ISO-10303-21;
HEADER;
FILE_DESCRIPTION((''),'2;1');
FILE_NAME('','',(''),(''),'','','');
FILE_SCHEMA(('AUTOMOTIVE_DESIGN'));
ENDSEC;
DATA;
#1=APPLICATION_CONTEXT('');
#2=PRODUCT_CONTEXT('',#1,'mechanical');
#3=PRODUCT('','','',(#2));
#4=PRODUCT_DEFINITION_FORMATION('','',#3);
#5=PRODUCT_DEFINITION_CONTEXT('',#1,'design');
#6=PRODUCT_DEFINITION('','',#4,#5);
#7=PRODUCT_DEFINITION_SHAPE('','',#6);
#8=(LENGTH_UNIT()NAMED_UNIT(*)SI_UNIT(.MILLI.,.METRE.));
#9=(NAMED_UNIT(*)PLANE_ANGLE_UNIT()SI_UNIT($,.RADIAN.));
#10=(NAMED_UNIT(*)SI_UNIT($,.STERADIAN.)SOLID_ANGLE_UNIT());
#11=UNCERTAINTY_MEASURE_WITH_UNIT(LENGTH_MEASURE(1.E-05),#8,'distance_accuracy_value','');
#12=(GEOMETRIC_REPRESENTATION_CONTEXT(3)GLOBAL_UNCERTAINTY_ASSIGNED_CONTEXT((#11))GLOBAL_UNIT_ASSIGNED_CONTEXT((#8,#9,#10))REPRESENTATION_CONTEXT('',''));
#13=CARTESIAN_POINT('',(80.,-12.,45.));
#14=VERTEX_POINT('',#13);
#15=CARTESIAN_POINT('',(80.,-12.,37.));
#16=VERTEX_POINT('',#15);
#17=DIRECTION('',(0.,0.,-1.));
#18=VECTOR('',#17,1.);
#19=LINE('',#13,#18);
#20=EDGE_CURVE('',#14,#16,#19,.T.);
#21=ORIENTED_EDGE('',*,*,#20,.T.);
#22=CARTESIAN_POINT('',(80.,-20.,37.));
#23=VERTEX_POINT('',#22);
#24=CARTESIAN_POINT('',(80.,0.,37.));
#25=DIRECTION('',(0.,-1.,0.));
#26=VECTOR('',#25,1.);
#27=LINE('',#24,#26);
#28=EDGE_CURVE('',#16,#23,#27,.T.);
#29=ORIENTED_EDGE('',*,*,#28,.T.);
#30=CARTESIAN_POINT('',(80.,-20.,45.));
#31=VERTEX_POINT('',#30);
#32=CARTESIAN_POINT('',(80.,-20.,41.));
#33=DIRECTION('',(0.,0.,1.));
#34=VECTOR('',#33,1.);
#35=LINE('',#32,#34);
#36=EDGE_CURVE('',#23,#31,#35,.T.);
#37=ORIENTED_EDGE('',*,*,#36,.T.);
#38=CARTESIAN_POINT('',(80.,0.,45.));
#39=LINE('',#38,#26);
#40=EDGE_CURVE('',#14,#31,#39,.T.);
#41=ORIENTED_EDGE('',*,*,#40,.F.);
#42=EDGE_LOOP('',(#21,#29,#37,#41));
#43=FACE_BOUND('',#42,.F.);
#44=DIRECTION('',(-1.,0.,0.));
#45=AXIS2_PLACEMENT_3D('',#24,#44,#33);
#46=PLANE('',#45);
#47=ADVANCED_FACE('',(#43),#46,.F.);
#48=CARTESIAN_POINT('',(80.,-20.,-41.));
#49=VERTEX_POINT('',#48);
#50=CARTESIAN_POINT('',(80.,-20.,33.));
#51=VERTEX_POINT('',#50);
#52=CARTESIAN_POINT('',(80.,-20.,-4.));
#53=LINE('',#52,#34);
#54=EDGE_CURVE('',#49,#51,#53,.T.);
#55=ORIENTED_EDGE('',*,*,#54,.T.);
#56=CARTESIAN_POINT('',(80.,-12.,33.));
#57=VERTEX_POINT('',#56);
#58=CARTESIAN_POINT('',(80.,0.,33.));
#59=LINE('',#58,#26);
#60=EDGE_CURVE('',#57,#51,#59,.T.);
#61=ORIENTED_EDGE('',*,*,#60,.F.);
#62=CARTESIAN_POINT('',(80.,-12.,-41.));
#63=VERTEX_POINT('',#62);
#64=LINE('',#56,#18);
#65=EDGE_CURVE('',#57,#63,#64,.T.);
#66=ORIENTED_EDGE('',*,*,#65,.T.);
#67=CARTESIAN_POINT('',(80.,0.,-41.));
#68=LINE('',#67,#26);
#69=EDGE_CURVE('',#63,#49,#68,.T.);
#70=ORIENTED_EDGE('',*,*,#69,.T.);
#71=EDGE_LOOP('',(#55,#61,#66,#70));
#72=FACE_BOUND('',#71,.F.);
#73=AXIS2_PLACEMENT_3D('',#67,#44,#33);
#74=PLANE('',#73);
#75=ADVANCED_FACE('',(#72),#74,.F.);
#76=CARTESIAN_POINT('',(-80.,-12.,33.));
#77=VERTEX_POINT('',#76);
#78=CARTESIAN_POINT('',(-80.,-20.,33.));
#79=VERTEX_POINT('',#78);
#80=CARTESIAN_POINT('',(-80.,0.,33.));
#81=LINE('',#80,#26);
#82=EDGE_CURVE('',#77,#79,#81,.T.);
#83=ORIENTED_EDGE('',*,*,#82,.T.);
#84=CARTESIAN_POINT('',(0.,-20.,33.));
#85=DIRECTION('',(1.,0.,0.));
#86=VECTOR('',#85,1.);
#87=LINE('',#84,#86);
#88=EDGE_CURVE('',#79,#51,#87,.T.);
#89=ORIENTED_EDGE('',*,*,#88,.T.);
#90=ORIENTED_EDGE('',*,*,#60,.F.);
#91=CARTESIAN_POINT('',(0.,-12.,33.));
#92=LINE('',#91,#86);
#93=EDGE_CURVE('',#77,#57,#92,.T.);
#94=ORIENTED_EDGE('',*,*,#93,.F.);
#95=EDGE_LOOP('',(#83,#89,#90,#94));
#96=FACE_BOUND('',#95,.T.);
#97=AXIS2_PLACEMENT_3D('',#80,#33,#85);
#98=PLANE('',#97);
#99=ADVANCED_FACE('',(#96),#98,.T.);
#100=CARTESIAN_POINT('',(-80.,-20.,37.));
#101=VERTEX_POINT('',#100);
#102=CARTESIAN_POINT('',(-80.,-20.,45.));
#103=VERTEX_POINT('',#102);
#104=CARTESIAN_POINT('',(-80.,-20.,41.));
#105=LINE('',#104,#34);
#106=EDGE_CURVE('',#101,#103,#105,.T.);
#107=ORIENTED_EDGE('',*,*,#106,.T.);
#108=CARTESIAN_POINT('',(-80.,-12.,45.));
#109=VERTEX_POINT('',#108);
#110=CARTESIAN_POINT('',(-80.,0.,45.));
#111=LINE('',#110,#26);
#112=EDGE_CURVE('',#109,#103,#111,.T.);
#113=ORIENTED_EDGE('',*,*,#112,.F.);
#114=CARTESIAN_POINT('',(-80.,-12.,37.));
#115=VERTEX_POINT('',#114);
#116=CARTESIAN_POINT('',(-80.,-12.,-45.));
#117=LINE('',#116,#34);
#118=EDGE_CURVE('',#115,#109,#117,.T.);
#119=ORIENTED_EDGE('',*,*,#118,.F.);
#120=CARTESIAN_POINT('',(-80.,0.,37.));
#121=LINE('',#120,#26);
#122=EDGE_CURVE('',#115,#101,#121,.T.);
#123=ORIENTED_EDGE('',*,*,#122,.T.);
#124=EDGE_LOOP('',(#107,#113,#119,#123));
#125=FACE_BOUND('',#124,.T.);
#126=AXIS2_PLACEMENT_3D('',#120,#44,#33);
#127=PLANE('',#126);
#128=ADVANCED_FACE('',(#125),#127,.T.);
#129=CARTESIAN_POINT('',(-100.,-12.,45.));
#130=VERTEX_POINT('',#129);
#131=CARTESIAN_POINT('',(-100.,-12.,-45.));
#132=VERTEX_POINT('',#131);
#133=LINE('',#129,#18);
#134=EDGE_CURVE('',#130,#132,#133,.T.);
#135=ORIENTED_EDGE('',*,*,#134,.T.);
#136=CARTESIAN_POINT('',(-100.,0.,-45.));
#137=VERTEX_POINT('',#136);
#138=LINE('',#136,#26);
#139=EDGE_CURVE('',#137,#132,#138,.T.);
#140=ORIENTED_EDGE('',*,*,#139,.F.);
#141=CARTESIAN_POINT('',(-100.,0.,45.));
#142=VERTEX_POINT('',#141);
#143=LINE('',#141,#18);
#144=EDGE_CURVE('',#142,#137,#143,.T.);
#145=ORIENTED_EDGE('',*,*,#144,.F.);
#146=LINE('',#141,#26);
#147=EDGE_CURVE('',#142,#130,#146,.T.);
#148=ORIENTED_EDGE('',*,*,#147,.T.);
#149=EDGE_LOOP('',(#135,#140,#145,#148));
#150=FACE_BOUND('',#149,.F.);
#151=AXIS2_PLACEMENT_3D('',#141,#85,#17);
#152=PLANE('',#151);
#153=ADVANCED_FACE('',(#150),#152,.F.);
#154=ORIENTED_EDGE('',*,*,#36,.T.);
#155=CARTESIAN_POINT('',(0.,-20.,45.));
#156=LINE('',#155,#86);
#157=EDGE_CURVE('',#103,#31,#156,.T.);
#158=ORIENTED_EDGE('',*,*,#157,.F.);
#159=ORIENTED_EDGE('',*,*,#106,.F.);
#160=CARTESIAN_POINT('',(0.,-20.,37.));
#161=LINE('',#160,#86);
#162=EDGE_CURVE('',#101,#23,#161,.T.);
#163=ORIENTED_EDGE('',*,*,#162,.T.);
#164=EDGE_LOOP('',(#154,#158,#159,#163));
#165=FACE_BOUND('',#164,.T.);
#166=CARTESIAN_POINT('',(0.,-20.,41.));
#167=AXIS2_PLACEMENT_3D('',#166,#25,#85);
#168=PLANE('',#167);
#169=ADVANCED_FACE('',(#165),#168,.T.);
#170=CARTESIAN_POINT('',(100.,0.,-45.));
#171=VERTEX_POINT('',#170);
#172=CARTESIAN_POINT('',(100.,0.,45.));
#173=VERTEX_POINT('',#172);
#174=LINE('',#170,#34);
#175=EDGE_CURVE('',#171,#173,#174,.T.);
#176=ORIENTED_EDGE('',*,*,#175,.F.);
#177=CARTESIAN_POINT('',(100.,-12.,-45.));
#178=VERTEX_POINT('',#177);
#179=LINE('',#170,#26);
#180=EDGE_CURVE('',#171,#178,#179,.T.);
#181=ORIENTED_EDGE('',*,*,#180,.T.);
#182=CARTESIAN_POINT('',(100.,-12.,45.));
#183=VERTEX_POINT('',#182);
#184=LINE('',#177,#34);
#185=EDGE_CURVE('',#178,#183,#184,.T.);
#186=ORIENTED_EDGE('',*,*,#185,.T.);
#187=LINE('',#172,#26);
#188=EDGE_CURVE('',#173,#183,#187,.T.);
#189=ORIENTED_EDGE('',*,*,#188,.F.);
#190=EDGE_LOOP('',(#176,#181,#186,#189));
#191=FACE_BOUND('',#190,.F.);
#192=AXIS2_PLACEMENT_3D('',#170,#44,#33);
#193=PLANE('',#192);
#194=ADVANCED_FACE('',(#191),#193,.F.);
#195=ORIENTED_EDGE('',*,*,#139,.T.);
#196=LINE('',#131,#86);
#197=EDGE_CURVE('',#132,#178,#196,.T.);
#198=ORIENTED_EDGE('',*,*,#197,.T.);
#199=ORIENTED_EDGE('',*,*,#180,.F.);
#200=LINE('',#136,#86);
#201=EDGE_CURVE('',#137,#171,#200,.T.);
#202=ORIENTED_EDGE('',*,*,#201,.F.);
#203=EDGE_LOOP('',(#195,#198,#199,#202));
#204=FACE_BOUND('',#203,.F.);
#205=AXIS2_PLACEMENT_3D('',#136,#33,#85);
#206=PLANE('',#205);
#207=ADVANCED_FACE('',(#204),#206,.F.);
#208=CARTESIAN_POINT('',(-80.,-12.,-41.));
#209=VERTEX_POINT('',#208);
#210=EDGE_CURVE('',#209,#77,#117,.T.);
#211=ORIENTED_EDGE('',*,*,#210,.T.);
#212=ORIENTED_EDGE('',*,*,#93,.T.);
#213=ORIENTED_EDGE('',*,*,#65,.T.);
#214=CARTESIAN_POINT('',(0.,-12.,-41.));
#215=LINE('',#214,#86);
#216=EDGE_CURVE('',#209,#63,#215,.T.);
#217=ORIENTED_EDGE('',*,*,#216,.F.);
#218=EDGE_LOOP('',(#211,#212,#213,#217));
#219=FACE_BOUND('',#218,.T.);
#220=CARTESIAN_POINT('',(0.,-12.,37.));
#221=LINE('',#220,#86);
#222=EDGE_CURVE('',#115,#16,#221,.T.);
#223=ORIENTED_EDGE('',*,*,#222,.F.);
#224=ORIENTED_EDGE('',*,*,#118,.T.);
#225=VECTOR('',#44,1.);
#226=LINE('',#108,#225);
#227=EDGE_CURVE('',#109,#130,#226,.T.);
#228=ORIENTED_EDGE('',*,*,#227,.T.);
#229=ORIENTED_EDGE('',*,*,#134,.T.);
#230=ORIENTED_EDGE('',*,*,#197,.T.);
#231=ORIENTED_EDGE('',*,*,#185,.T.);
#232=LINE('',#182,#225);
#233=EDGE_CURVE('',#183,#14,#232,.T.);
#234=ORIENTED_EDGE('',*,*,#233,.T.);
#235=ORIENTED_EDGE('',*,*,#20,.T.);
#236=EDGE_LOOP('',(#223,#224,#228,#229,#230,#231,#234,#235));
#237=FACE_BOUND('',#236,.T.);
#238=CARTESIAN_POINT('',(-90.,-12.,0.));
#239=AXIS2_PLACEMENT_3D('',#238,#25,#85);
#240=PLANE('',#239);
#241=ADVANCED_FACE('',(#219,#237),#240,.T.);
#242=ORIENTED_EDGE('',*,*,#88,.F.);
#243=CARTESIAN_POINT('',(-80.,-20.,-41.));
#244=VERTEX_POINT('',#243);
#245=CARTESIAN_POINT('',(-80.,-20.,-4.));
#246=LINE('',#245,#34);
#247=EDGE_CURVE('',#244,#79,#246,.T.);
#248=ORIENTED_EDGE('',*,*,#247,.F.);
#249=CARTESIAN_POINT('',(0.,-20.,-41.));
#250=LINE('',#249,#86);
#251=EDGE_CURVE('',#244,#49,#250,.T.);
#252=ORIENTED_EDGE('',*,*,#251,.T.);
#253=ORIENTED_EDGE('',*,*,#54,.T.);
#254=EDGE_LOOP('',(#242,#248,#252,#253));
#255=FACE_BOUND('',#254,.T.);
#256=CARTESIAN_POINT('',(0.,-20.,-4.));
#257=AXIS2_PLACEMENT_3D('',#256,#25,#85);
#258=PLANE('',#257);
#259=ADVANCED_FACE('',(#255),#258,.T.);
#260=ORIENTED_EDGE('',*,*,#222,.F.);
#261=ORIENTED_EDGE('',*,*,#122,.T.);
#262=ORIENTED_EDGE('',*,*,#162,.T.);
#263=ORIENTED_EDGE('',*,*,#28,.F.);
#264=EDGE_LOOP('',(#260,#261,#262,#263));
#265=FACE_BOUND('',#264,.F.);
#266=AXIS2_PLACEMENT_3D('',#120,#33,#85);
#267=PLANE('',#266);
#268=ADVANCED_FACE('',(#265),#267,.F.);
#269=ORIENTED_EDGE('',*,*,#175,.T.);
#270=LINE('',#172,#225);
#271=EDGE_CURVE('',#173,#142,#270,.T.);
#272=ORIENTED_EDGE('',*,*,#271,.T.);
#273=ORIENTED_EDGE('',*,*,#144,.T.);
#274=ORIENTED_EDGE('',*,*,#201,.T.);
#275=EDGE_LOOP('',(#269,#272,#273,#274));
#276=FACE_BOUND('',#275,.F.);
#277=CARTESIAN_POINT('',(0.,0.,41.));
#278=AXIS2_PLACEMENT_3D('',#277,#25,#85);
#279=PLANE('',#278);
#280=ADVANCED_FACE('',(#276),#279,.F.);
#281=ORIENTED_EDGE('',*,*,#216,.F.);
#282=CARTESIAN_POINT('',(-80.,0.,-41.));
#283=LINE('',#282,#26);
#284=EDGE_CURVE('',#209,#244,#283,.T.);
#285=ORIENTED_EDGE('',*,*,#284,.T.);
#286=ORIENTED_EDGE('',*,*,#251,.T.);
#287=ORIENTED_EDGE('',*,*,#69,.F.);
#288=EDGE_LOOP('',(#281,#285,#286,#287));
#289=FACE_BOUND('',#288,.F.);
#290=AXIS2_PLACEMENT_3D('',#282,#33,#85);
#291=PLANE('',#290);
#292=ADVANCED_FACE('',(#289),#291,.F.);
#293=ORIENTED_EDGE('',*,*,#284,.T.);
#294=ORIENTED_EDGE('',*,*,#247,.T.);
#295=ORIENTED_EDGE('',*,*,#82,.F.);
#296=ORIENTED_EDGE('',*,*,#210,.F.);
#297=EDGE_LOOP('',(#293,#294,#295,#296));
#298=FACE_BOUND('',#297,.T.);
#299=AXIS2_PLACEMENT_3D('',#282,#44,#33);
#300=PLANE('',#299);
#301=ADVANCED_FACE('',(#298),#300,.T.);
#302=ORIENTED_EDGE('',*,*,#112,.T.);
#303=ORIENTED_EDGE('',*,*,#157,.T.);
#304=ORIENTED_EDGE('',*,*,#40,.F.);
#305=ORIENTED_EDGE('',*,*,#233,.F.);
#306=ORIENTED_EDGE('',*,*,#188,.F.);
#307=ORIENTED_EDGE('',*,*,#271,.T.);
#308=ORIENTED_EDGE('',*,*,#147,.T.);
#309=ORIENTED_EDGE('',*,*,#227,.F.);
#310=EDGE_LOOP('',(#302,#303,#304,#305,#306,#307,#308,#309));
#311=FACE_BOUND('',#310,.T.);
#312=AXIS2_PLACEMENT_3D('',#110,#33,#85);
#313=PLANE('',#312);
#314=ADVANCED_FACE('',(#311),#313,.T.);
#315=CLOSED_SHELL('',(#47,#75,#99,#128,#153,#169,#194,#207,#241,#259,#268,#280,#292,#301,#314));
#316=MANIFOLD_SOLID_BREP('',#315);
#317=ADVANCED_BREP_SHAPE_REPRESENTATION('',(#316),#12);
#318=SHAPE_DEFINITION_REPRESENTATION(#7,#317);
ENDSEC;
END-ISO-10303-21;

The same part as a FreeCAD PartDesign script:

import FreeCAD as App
import Part
import Sketcher
from FreeCAD import Vector


def add_polygon(sketch, points):
    """Adds a closed chain of lines whose ends are joined by coincident constraints."""
    first, n = sketch.GeometryCount, len(points)
    for a, b in zip(points, points[1:] + points[:1]):
        sketch.addGeometry(Part.LineSegment(App.Vector(*a, 0), App.Vector(*b, 0)), False)
    for i in range(n):
        sketch.addConstraint(Sketcher.Constraint("Coincident", first + i, 2, first + (i + 1) % n, 1))

doc = App.newDocument("Part")
body = doc.addObject("PartDesign::Body", "Body")

sketch1 = doc.addObject("Sketcher::SketchObject", "Sketch")
body.addObject(sketch1)
sketch1.AttachmentSupport = (doc.XZ_Plane, [""])
sketch1.MapMode = "FlatFace"
add_polygon(sketch1, [(-80, 45), (-100, 45), (-100, -45), (100, -45), (100, 45), (80, 45), (80, 37), (-80, 37)])
add_polygon(sketch1, [(80, -41), (-80, -41), (-80, 33), (80, 33)])
sketch1.addConstraint(Sketcher.Constraint("Horizontal", 0))
sketch1.addConstraint(Sketcher.Constraint("Vertical", 1))
sketch1.addConstraint(Sketcher.Constraint("Horizontal", 2))
sketch1.addConstraint(Sketcher.Constraint("Vertical", 3))
sketch1.addConstraint(Sketcher.Constraint("Horizontal", 4))
sketch1.addConstraint(Sketcher.Constraint("Vertical", 5))
sketch1.addConstraint(Sketcher.Constraint("Horizontal", 6))
sketch1.addConstraint(Sketcher.Constraint("Vertical", 7))
sketch1.addConstraint(Sketcher.Constraint("Horizontal", 8))
sketch1.addConstraint(Sketcher.Constraint("Vertical", 9))
sketch1.addConstraint(Sketcher.Constraint("Horizontal", 10))
sketch1.addConstraint(Sketcher.Constraint("Vertical", 11))
sketch1.addConstraint(Sketcher.Constraint("Symmetric", 0, 2, 2, 2, -1, 1))
sketch1.addConstraint(Sketcher.Constraint("Symmetric", 4, 2, 7, 2, -2))
sketch1.addConstraint(Sketcher.Constraint("Vertical", 7, 2, 8, 2))
sketch1.addConstraint(Sketcher.Constraint("Vertical", 5, 2, 10, 2))
sketch1.addConstraint(Sketcher.Constraint("DistanceX", 0, 2, 0, 1, 20.0))
sketch1.addConstraint(Sketcher.Constraint("DistanceX", 2, 1, 2, 2, 200.0))
sketch1.addConstraint(Sketcher.Constraint("DistanceY", 1, 2, 1, 1, 90.0))
sketch1.addConstraint(Sketcher.Constraint("DistanceY", 5, 2, 5, 1, 8.0))
sketch1.addConstraint(Sketcher.Constraint("DistanceY", 9, 1, 9, 2, 74.0))
sketch1.addConstraint(Sketcher.Constraint("DistanceY", 8, 2, -1, 1, 41.0))
pad1 = doc.addObject("PartDesign::Pad", "Pad")
body.addObject(pad1)
pad1.Profile = sketch1
pad1.Length = 12

sketch2 = doc.addObject("Sketcher::SketchObject", "Sketch001")
body.addObject(sketch2)
sketch2.AttachmentSupport = (doc.XZ_Plane, [""])
sketch2.MapMode = "FlatFace"
add_polygon(sketch2, [(-80, 45), (-80, 37), (80, 37), (80, 45)])
add_polygon(sketch2, [(-80, 33), (-80, -41), (80, -41), (80, 33)])
sketch2.addConstraint(Sketcher.Constraint("Vertical", 0))
sketch2.addConstraint(Sketcher.Constraint("Horizontal", 1))
sketch2.addConstraint(Sketcher.Constraint("Vertical", 2))
sketch2.addConstraint(Sketcher.Constraint("Horizontal", 3))
sketch2.addConstraint(Sketcher.Constraint("Vertical", 4))
sketch2.addConstraint(Sketcher.Constraint("Horizontal", 5))
sketch2.addConstraint(Sketcher.Constraint("Vertical", 6))
sketch2.addConstraint(Sketcher.Constraint("Horizontal", 7))
sketch2.addConstraint(Sketcher.Constraint("Vertical", 3, 2, 4, 2))
sketch2.addConstraint(Sketcher.Constraint("Vertical", 2, 2, 5, 2))
sketch2.addConstraint(Sketcher.Constraint("DistanceX", 1, 1, 1, 2, 160.0))
sketch2.addConstraint(Sketcher.Constraint("DistanceY", 0, 2, 0, 1, 8.0))
sketch2.addConstraint(Sketcher.Constraint("DistanceY", 4, 2, 4, 1, 74.0))
sketch2.addConstraint(Sketcher.Constraint("DistanceX", 0, 2, -1, 1, 80.0))
sketch2.addConstraint(Sketcher.Constraint("DistanceY", -1, 1, 0, 2, 37.0))
sketch2.addConstraint(Sketcher.Constraint("DistanceY", 4, 2, -1, 1, 41.0))
pad2 = doc.addObject("PartDesign::Pad", "Pad001")
body.addObject(pad2)
pad2.Profile = sketch2
pad2.Length = 20

doc.recompute()
